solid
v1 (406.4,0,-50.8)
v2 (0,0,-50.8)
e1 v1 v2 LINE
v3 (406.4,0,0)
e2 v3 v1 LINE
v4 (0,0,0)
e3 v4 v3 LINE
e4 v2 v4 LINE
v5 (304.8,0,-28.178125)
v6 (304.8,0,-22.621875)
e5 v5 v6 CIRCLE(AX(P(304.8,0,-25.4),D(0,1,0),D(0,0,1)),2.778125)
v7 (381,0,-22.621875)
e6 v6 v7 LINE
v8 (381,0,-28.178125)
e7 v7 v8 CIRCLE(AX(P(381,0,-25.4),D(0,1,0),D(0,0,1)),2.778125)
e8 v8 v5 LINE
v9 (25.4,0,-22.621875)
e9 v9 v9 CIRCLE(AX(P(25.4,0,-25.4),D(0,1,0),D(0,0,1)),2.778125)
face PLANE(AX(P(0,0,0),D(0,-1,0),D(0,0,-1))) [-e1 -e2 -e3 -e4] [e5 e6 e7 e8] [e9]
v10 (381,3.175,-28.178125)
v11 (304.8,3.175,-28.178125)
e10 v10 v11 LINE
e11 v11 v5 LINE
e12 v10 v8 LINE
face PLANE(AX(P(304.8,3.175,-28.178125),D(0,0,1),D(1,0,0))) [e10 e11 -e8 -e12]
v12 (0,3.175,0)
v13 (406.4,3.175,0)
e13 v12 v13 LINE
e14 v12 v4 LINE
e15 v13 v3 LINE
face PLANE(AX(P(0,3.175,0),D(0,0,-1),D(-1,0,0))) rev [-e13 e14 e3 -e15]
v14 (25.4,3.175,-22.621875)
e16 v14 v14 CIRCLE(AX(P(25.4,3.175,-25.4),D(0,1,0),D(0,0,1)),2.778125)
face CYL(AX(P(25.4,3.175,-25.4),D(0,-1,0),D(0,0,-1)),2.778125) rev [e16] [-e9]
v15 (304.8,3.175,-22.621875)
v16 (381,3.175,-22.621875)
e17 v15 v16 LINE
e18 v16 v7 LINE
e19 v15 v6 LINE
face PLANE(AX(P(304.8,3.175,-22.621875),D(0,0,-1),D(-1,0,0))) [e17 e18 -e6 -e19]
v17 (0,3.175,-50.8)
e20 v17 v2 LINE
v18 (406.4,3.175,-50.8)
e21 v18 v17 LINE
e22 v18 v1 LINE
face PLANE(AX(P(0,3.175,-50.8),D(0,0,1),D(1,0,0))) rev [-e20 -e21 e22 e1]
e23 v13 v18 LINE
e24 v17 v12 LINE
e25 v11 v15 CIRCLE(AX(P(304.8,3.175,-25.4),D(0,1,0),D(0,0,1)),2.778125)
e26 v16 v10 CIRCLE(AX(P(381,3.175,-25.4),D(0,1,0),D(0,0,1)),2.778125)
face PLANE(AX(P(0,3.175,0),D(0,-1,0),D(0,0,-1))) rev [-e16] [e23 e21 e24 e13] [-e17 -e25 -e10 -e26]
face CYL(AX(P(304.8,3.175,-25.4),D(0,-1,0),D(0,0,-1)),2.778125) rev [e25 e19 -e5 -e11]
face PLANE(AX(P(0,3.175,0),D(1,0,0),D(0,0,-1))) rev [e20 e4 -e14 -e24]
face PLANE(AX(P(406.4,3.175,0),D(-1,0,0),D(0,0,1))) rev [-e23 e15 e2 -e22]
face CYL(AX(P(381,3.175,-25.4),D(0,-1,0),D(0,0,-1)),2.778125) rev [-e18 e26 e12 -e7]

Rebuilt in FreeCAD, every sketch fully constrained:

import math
import FreeCAD as App
import Part
import Sketcher
Q = App.Units.Quantity

doc = App.newDocument("Part")
body = doc.addObject("PartDesign::Body", "Body")

sketch1 = doc.addObject("Sketcher::SketchObject", "Sketch")
body.addObject(sketch1)
sketch1.AttachmentSupport = (doc.XZ_Plane, [""])
sketch1.MapMode = "FlatFace"
sketch1.addGeometry(Part.LineSegment(App.Vector(0, -50.8, 0), App.Vector(0, 0, 0)), False)
sketch1.addGeometry(Part.LineSegment(App.Vector(0, 0, 0), App.Vector(406.4, 0, 0)), False)
sketch1.addGeometry(Part.LineSegment(App.Vector(406.4, 0, 0), App.Vector(406.4, -50.8, 0)), False)
sketch1.addGeometry(Part.LineSegment(App.Vector(406.4, -50.8, 0), App.Vector(0, -50.8, 0)), False)
sketch1.addGeometry(Part.Circle(App.Vector(25.4, -25.4, 0), App.Vector(0, 0, 1), 2.778125), False)
sketch1.addGeometry(Part.ArcOfCircle(Part.Circle(App.Vector(304.8, -25.4, 0), App.Vector(0, 0, 1), 2.778125), math.radians(90), math.radians(270)), False)
sketch1.addGeometry(Part.LineSegment(App.Vector(304.8, -28.178125, 0), App.Vector(381, -28.178125, 0)), False)
sketch1.addGeometry(Part.ArcOfCircle(Part.Circle(App.Vector(381, -25.4, 0), App.Vector(0, 0, 1), 2.778125), math.radians(-90), math.radians(90)), False)
sketch1.addGeometry(Part.LineSegment(App.Vector(381, -22.621875, 0), App.Vector(304.8, -22.621875, 0)), False)
sketch1.addConstraint(Sketcher.Constraint("Coincident", 0, 2, 1, 1))
sketch1.addConstraint(Sketcher.Constraint("Coincident", 1, 2, 2, 1))
sketch1.addConstraint(Sketcher.Constraint("Coincident", 2, 2, 3, 1))
sketch1.addConstraint(Sketcher.Constraint("Coincident", 3, 2, 0, 1))
sketch1.addConstraint(Sketcher.Constraint("Tangent", 5, 2, 6, 1))
sketch1.addConstraint(Sketcher.Constraint("Tangent", 6, 2, 7, 1))
sketch1.addConstraint(Sketcher.Constraint("Tangent", 7, 2, 8, 1))
sketch1.addConstraint(Sketcher.Constraint("Tangent", 8, 2, 5, 1))
sketch1.addConstraint(Sketcher.Constraint("Vertical", 0))
sketch1.addConstraint(Sketcher.Constraint("Horizontal", 1))
sketch1.addConstraint(Sketcher.Constraint("Vertical", 2))
sketch1.addConstraint(Sketcher.Constraint("Horizontal", 3))
sketch1.addConstraint(Sketcher.Constraint("Horizontal", 6))
sketch1.addConstraint(Sketcher.Constraint("Horizontal", 8))
sketch1.addConstraint(Sketcher.Constraint("Coincident", 0, 2, -1, 1))
sketch1.addConstraint(Sketcher.Constraint("Equal", 4, 5))
sketch1.addConstraint(Sketcher.Constraint("Horizontal", 4, 3, 5, 3))
sketch1.addConstraint(Sketcher.Constraint("DistanceX", 1, 1, 1, 2, Q("16 in")))
sketch1.addConstraint(Sketcher.Constraint("DistanceX", 6, 1, 6, 2, Q("3 in")))
sketch1.addConstraint(Sketcher.Constraint("DistanceY", 0, 1, 0, 2, Q("2 in")))
sketch1.addConstraint(Sketcher.Constraint("Diameter", 4, Q("0.21875 in")))
sketch1.addConstraint(Sketcher.Constraint("DistanceX", -1, 1, 4, 3, Q("1 in")))
sketch1.addConstraint(Sketcher.Constraint("DistanceY", 4, 3, -1, 1, Q("1 in")))
sketch1.addConstraint(Sketcher.Constraint("DistanceX", -1, 1, 5, 3, Q("12 in")))
pad1 = doc.addObject("PartDesign::Pad", "Pad")
body.addObject(pad1)
pad1.Profile = sketch1
pad1.Length = Q("0.125 in")
pad1.Reversed = True

doc.recompute()
